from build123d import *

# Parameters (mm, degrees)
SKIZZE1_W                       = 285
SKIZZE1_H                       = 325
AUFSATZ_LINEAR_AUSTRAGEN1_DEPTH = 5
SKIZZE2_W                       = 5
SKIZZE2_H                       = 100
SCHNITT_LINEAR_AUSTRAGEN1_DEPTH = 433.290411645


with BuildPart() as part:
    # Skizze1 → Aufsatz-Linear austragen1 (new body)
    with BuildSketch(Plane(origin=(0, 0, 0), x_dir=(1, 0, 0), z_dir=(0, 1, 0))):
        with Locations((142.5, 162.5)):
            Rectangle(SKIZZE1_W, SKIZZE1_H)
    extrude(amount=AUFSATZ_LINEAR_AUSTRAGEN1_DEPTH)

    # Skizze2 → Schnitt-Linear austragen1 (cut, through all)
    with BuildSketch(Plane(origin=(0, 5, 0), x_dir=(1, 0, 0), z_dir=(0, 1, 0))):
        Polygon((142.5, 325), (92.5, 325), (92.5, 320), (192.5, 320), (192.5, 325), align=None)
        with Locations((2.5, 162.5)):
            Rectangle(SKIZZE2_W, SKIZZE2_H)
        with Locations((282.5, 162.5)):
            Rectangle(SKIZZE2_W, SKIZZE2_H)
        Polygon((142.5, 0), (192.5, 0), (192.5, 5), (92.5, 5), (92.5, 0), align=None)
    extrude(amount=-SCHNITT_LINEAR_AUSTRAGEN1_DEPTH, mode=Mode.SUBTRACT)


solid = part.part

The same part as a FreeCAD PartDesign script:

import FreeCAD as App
import Part
import Sketcher


def add_polygon(sketch, points):
    """Adds a closed chain of lines whose ends are joined by coincident constraints."""
    first, n = sketch.GeometryCount, len(points)
    for a, b in zip(points, points[1:] + points[:1]):
        sketch.addGeometry(Part.LineSegment(App.Vector(*a, 0), App.Vector(*b, 0)), False)
    for i in range(n):
        sketch.addConstraint(Sketcher.Constraint("Coincident", first + i, 2, first + (i + 1) % n, 1))

doc = App.newDocument("Part")
body = doc.addObject("PartDesign::Body", "Body")

# Sketch on XZ plane
sketch1 = body.newObject("Sketcher::SketchObject", "Sketch")
sketch1.AttachmentSupport = (doc.getObject("XZ_Plane"), [""])
sketch1.MapMode = "FlatFace"
add_polygon(sketch1, [(0, -325), (0, 0), (285, 0), (285, -325)])  # lines 0-3
sketch1.addConstraint([
    Sketcher.Constraint("Vertical", 0),
    Sketcher.Constraint("Horizontal", 1),
    Sketcher.Constraint("Vertical", 2),
    Sketcher.Constraint("Horizontal", 3),
    Sketcher.Constraint("Coincident", 0, 2, -1, 1),
    Sketcher.Constraint("DistanceX", 1, 1, 1, 2, 285.0),
    Sketcher.Constraint("DistanceY", 0, 1, 0, 2, 325.0),
])
pad1 = body.newObject("PartDesign::Pad", "Pad")
pad1.Profile = sketch1
pad1.Length = 5
pad1.Reversed = True

# Sketch on XZ plane
sketch2 = body.newObject("Sketcher::SketchObject", "Sketch001")
sketch2.AttachmentSupport = (doc.getObject("XZ_Plane"), [""])
sketch2.MapMode = "FlatFace"
sketch2.AttachmentOffset = App.Placement(App.Vector(0, 0, -5), App.Rotation())
add_polygon(sketch2, [(92.5, -325), (92.5, -320), (192.5, -320), (192.5, -325)])  # lines 0-3
add_polygon(sketch2, [(0, -212.5), (0, -112.5), (5, -112.5), (5, -212.5)])  # lines 4-7
add_polygon(sketch2, [(280, -212.5), (280, -112.5), (285, -112.5), (285, -212.5)])  # lines 8-11
add_polygon(sketch2, [(192.5, 0), (192.5, -5), (92.5, -5), (92.5, 0)])  # lines 12-15
sketch2.addConstraint([
    Sketcher.Constraint("Vertical", 0),
    Sketcher.Constraint("Horizontal", 1),
    Sketcher.Constraint("Vertical", 2),
    Sketcher.Constraint("Horizontal", 3),
    Sketcher.Constraint("Vertical", 4),
    Sketcher.Constraint("Horizontal", 5),
    Sketcher.Constraint("Vertical", 6),
    Sketcher.Constraint("Horizontal", 7),
    Sketcher.Constraint("Vertical", 8),
    Sketcher.Constraint("Horizontal", 9),
    Sketcher.Constraint("Vertical", 10),
    Sketcher.Constraint("Horizontal", 11),
    Sketcher.Constraint("Vertical", 12),
    Sketcher.Constraint("Horizontal", 13),
    Sketcher.Constraint("Vertical", 14),
    Sketcher.Constraint("Horizontal", 15),
    Sketcher.Constraint("PointOnObject", 4, 2, -2),
    Sketcher.Constraint("PointOnObject", 14, 2, -1),
    Sketcher.Constraint("Horizontal", 5, 2, 8, 2),
    Sketcher.Constraint("Horizontal", 7, 2, 10, 2),
    Sketcher.Constraint("Vertical", 2, 2, 12, 2),
    Sketcher.Constraint("Vertical", 3, 2, 13, 2),
    Sketcher.Constraint("Equal", 7, 9),
    Sketcher.Constraint("Equal", 11, 0),
    Sketcher.Constraint("Equal", 15, 4),
    Sketcher.Constraint("Equal", 2, 12),
    Sketcher.Constraint("DistanceX", 1, 1, 1, 2, 100.0),
    Sketcher.Constraint("DistanceX", 5, 1, 5, 2, 5.0),
    Sketcher.Constraint("DistanceY", 0, 2, -1, 1, 320.0),
    Sketcher.Constraint("DistanceX", -1, 1, 8, 2, 280.0),
    Sketcher.Constraint("DistanceX", -1, 1, 0, 2, 92.5),
    Sketcher.Constraint("DistanceY", 4, 2, -1, 1, 112.5),
])
pocket1 = body.newObject("PartDesign::Pocket", "Pocket")
pocket1.Profile = sketch2
pocket1.Type = "ThroughAll"
pocket1.Reversed = True

doc.recompute()
